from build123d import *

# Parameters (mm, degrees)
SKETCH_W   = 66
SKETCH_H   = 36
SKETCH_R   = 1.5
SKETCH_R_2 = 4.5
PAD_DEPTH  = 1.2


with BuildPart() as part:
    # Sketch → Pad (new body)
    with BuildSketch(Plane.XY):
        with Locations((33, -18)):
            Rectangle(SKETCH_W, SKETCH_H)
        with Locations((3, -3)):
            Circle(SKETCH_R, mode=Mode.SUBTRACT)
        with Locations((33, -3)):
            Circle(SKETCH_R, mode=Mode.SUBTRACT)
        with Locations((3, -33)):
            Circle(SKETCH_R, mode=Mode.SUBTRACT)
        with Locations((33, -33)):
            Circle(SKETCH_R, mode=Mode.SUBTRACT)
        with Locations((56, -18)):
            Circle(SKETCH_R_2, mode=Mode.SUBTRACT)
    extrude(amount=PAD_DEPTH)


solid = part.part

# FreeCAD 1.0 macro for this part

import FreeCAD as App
import Part
import Sketcher

doc = App.newDocument("Part")
body = doc.addObject("PartDesign::Body", "Body")

sketch1 = body.newObject("Sketcher::SketchObject", "Sketch")
sketch1.AttachmentSupport = (doc.getObject("XY_Plane"), [""])
sketch1.MapMode = "FlatFace"
sketch1.addGeometry([
    Part.LineSegment(App.Vector(0, 0, 0), App.Vector(0, -36, 0)),
    Part.LineSegment(App.Vector(0, -36, 0), App.Vector(66, -36, 0)),
    Part.LineSegment(App.Vector(66, -36, 0), App.Vector(66, 0, 0)),
    Part.LineSegment(App.Vector(66, 0, 0), App.Vector(0, 0, 0)),
    Part.Circle(App.Vector(3, -33, 0), App.Vector(0, 0, 1), 1.5),
    Part.Circle(App.Vector(33, -33, 0), App.Vector(0, 0, 1), 1.5),
    Part.Circle(App.Vector(3, -3, 0), App.Vector(0, 0, 1), 1.5),
    Part.Circle(App.Vector(56, -18, 0), App.Vector(0, 0, 1), 4.5),
    Part.Circle(App.Vector(33, -3, 0), App.Vector(0, 0, 1), 1.5),
], False)
sketch1.addConstraint([
    Sketcher.Constraint("Coincident", 0, 2, 1, 1),
    Sketcher.Constraint("Coincident", 1, 2, 2, 1),
    Sketcher.Constraint("Coincident", 2, 2, 3, 1),
    Sketcher.Constraint("Coincident", 3, 2, 0, 1),
    Sketcher.Constraint("Vertical", 0),
    Sketcher.Constraint("Horizontal", 1),
    Sketcher.Constraint("Vertical", 2),
    Sketcher.Constraint("Horizontal", 3),
    Sketcher.Constraint("Coincident", 3, 2, -1, 1),
    Sketcher.Constraint("Equal", 4, 5),
    Sketcher.Constraint("Equal", 5, 6),
    Sketcher.Constraint("Equal", 6, 8),
    Sketcher.Constraint("Horizontal", 4, 3, 5, 3),
    Sketcher.Constraint("Horizontal", 6, 3, 8, 3),
    Sketcher.Constraint("Vertical", 4, 3, 6, 3),
    Sketcher.Constraint("Vertical", 5, 3, 8, 3),
    Sketcher.Constraint("Diameter", 4, 3.0),
    Sketcher.Constraint("Diameter", 7, 9.0),
    Sketcher.Constraint("DistanceX", 1, 1, 1, 2, 66.0),
    Sketcher.Constraint("DistanceY", 0, 2, 0, 1, 36.0),
    Sketcher.Constraint("DistanceX", -1, 1, 4, 3, 3.0),
    Sketcher.Constraint("DistanceY", 4, 3, -1, 1, 33.0),
    Sketcher.Constraint("DistanceX", -1, 1, 5, 3, 33.0),
    Sketcher.Constraint("DistanceY", 6, 3, -1, 1, 3.0),
    Sketcher.Constraint("DistanceX", -1, 1, 7, 3, 56.0),
    Sketcher.Constraint("DistanceY", 7, 3, -1, 1, 18.0),
])
pad1 = body.newObject("PartDesign::Pad", "Pad")
pad1.Profile = sketch1
pad1.Length = 1.2

doc.recompute()
